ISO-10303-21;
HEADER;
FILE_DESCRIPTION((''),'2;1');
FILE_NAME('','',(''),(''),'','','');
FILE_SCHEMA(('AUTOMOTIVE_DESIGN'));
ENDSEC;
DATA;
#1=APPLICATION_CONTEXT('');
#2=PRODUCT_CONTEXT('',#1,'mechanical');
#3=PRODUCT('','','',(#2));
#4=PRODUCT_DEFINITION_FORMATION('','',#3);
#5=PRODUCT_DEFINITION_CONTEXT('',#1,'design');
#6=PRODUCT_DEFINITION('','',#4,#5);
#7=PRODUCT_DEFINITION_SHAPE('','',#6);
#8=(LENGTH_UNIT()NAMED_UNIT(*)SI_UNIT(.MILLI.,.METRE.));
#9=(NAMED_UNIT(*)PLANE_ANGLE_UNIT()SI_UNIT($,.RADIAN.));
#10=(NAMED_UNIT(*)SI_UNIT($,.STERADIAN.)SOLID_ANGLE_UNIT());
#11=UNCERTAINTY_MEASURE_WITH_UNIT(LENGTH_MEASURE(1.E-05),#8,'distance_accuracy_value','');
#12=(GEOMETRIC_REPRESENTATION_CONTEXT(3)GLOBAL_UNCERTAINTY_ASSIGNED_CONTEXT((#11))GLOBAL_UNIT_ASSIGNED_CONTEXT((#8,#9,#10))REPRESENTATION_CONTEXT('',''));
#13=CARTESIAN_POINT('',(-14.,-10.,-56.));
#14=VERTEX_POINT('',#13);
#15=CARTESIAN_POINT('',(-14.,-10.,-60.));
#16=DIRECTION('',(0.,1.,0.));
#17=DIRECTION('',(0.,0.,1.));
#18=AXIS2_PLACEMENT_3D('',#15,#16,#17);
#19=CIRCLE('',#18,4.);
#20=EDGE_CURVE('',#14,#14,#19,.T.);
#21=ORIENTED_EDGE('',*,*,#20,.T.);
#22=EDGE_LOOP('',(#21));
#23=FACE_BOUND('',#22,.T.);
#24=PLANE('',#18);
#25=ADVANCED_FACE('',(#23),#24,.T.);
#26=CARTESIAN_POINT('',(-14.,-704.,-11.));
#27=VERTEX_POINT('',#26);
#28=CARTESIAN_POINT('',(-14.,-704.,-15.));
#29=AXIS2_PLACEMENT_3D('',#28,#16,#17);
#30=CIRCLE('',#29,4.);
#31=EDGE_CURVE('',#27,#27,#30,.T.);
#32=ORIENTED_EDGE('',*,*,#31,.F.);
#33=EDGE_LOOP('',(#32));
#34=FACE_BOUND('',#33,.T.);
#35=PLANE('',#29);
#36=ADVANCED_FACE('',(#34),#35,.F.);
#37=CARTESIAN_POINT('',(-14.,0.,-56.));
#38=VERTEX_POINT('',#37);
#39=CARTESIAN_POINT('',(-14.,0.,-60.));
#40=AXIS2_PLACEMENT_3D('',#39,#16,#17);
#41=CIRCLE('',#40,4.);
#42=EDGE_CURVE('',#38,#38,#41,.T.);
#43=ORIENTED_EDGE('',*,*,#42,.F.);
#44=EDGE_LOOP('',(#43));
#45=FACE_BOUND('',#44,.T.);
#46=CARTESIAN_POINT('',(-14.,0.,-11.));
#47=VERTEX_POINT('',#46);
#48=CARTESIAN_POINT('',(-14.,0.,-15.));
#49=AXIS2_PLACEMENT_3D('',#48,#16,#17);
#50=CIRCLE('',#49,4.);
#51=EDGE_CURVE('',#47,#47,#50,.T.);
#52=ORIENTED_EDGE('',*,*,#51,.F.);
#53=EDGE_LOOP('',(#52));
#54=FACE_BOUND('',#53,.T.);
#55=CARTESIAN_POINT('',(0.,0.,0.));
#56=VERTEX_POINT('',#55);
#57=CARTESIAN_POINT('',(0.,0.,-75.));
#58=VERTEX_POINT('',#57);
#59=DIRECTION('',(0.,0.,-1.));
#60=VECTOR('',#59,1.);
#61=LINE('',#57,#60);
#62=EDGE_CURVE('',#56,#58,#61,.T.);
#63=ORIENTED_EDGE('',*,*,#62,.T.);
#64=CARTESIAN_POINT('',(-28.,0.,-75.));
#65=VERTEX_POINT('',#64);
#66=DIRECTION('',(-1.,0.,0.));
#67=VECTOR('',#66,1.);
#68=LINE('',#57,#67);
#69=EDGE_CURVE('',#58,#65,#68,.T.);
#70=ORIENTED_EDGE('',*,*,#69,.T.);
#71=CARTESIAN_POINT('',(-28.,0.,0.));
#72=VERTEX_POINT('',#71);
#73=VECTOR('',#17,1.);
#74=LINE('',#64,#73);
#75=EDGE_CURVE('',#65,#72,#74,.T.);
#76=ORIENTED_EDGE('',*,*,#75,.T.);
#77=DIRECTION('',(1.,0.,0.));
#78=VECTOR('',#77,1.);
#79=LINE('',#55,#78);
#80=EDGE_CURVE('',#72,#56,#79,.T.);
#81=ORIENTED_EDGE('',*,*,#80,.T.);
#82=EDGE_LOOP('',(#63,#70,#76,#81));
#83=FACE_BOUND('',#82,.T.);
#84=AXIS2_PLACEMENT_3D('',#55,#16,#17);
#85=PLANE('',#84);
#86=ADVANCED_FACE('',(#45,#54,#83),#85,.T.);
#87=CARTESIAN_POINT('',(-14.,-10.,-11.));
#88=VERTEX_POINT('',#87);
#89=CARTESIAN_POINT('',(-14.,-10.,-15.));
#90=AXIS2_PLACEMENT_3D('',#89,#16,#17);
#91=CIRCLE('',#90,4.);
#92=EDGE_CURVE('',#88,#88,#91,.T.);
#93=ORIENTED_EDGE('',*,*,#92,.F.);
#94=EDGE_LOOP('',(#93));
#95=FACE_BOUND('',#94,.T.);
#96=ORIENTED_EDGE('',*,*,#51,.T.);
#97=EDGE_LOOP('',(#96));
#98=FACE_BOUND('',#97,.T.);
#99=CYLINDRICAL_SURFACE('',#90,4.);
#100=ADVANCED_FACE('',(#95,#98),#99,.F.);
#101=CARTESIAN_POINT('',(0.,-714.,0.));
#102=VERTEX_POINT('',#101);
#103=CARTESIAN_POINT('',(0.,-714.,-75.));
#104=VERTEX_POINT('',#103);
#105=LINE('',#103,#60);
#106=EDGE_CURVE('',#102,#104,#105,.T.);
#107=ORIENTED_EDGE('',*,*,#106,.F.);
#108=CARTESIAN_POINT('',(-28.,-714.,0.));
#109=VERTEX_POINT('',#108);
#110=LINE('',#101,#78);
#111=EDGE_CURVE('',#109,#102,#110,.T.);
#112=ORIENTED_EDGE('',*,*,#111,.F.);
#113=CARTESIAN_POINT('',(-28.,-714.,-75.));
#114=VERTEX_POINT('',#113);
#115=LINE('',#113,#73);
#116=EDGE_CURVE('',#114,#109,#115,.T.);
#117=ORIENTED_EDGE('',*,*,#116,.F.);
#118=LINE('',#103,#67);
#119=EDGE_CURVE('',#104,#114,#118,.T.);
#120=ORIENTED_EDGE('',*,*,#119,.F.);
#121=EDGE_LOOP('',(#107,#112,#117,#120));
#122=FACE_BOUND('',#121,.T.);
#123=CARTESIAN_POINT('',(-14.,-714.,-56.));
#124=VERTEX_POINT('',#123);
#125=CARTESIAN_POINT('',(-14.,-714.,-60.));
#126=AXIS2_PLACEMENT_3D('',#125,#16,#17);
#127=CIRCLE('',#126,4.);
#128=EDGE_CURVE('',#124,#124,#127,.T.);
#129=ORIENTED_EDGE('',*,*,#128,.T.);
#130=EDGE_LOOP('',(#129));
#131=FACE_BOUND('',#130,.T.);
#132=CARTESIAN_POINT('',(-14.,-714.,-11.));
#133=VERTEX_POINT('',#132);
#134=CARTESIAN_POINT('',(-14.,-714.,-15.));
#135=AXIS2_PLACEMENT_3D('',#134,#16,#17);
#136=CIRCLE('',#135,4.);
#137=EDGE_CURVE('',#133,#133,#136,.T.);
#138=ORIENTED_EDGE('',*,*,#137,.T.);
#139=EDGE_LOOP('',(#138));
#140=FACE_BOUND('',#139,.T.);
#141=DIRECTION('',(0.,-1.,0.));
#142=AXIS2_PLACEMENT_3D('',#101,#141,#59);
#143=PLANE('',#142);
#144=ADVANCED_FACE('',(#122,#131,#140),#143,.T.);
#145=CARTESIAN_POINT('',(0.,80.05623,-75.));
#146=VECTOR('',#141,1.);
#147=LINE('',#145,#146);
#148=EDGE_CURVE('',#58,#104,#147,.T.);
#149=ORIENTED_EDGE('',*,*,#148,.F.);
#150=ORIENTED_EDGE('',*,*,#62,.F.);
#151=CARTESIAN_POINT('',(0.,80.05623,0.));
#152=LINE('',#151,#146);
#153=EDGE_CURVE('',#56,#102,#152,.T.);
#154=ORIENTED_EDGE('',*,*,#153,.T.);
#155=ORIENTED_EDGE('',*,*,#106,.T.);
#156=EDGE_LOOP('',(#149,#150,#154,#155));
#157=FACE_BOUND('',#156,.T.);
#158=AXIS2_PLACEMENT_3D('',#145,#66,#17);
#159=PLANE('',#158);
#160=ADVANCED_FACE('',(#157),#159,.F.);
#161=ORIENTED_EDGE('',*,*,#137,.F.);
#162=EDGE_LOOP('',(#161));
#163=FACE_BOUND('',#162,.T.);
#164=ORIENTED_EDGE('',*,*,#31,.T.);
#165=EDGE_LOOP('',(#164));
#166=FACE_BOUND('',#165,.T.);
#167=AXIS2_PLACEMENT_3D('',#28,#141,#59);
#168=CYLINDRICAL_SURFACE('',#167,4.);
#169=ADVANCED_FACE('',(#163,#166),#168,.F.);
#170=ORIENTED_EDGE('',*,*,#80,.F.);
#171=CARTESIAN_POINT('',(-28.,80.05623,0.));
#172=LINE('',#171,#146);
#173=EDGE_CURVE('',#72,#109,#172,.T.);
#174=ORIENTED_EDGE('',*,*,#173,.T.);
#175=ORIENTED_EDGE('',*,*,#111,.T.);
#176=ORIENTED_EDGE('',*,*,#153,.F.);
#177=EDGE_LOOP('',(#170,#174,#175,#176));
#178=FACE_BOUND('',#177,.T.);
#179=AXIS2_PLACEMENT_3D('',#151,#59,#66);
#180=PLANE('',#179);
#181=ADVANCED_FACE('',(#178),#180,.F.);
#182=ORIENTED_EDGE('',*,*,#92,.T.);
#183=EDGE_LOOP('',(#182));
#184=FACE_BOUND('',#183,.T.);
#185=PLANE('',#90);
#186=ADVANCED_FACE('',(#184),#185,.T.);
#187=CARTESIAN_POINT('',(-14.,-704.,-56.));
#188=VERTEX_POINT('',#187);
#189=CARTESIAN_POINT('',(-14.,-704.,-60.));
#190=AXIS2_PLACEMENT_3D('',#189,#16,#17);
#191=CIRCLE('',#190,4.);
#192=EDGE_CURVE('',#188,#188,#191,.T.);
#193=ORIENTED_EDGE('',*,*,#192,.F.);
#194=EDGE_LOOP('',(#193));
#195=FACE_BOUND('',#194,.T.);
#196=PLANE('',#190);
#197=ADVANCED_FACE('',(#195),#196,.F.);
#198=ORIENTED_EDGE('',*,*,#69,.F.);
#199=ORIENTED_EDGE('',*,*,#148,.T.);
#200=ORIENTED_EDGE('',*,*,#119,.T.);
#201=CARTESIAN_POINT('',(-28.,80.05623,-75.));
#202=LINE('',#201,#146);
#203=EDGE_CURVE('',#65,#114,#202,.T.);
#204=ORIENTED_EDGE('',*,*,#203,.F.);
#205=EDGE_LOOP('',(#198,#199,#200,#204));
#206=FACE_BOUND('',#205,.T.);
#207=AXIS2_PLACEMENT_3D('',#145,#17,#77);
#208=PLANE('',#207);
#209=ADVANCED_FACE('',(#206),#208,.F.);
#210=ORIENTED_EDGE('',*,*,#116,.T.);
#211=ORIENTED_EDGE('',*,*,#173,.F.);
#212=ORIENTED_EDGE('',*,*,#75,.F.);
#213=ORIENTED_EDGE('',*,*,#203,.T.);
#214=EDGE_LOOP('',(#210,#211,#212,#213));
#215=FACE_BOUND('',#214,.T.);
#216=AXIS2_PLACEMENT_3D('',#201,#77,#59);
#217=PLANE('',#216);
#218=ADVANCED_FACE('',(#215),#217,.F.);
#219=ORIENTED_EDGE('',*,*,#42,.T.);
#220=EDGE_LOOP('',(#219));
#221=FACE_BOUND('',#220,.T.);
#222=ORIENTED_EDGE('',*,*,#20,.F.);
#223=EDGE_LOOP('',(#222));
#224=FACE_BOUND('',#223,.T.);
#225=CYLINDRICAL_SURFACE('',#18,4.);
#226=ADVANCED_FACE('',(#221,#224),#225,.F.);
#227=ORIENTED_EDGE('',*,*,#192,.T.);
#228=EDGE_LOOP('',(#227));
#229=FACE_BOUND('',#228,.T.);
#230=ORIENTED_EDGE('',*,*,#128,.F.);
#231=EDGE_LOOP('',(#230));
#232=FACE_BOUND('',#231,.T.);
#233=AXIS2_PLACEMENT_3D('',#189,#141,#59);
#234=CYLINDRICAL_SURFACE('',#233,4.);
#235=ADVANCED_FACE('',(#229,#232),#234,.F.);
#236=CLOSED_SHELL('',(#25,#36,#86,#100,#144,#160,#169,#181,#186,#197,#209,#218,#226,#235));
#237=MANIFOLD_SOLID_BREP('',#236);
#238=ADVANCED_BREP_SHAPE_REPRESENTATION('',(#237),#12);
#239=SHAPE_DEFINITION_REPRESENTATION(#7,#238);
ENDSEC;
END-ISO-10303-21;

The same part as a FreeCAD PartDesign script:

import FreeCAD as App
import Part
import Sketcher

V = App.Vector

doc = App.newDocument("Part")
body = doc.addObject("PartDesign::Body", "Body")

# Sketch on XZ plane
sketch1 = body.newObject("Sketcher::SketchObject", "Sketch")
sketch1.AttachmentSupport = (doc.getObject("XZ_Plane"), [""])
sketch1.MapMode = "FlatFace"
sketch1.AttachmentOffset = App.Placement(V(0, 0, 714), App.Rotation())
sketch1.addGeometry([
    Part.LineSegment(V(0, 0, 0), V(0, -75, 0)),
    Part.LineSegment(V(0, -75, 0), V(-28, -75, 0)),
    Part.LineSegment(V(-28, -75, 0), V(-28, 0, 0)),
    Part.LineSegment(V(-28, 0, 0), V(0, 0, 0)),
], False)
sketch1.addConstraint([
    Sketcher.Constraint("Coincident", 0, 2, 1, 1),
    Sketcher.Constraint("Coincident", 1, 2, 2, 1),
    Sketcher.Constraint("Coincident", 2, 2, 3, 1),
    Sketcher.Constraint("Coincident", 3, 2, 0, 1),
    Sketcher.Constraint("Vertical", 0),
    Sketcher.Constraint("Horizontal", 1),
    Sketcher.Constraint("Vertical", 2),
    Sketcher.Constraint("Horizontal", 3),
    Sketcher.Constraint("Coincident", 3, 2, -1, 1),
    Sketcher.Constraint("DistanceX", 1, 2, 1, 1, 28.0),
    Sketcher.Constraint("DistanceY", 0, 2, 0, 1, 75.0),
])
pad1 = body.newObject("PartDesign::Pad", "Pad")
pad1.Profile = sketch1
pad1.Length = 714
pad1.Reversed = True

# Sketch on XZ plane
sketch2 = body.newObject("Sketcher::SketchObject", "Sketch001")
sketch2.AttachmentSupport = (doc.getObject("XZ_Plane"), [""])
sketch2.MapMode = "FlatFace"
sketch2.addGeometry([
    Part.Circle(V(-14, -15, 0), V(0, 0, 1), 4),
    Part.Circle(V(-14, -60, 0), V(0, 0, 1), 4),
], False)
sketch2.addConstraint([
    Sketcher.Constraint("Equal", 0, 1),
    Sketcher.Constraint("Vertical", 0, 3, 1, 3),
    Sketcher.Constraint("Diameter", 0, 8.0),
    Sketcher.Constraint("DistanceX", 0, 3, -1, 1, 14.0),
    Sketcher.Constraint("DistanceY", 0, 3, -1, 1, 15.0),
    Sketcher.Constraint("DistanceY", 1, 3, -1, 1, 60.0),
])
pocket1 = body.newObject("PartDesign::Pocket", "Pocket")
pocket1.Profile = sketch2
pocket1.Length = 10
pocket1.Reversed = True

# Sketch on XZ plane
sketch3 = body.newObject("Sketcher::SketchObject", "Sketch002")
sketch3.AttachmentSupport = (doc.getObject("XZ_Plane"), [""])
sketch3.MapMode = "FlatFace"
sketch3.AttachmentOffset = App.Placement(V(0, 0, 704), App.Rotation())
sketch3.addGeometry([
    Part.Circle(V(-14, -60, 0), V(0, 0, 1), 4),
    Part.Circle(V(-14, -15, 0), V(0, 0, 1), 4),
], False)
sketch3.addConstraint([
    Sketcher.Constraint("Equal", 0, 1),
    Sketcher.Constraint("Vertical", 0, 3, 1, 3),
    Sketcher.Constraint("Diameter", 0, 8.0),
    Sketcher.Constraint("DistanceX", 0, 3, -1, 1, 14.0),
    Sketcher.Constraint("DistanceY", 0, 3, -1, 1, 60.0),
    Sketcher.Constraint("DistanceY", 1, 3, -1, 1, 15.0),
])
pocket2 = body.newObject("PartDesign::Pocket", "Pocket001")
pocket2.Profile = sketch3
pocket2.Length = 10
pocket2.Reversed = True

doc.recompute()
